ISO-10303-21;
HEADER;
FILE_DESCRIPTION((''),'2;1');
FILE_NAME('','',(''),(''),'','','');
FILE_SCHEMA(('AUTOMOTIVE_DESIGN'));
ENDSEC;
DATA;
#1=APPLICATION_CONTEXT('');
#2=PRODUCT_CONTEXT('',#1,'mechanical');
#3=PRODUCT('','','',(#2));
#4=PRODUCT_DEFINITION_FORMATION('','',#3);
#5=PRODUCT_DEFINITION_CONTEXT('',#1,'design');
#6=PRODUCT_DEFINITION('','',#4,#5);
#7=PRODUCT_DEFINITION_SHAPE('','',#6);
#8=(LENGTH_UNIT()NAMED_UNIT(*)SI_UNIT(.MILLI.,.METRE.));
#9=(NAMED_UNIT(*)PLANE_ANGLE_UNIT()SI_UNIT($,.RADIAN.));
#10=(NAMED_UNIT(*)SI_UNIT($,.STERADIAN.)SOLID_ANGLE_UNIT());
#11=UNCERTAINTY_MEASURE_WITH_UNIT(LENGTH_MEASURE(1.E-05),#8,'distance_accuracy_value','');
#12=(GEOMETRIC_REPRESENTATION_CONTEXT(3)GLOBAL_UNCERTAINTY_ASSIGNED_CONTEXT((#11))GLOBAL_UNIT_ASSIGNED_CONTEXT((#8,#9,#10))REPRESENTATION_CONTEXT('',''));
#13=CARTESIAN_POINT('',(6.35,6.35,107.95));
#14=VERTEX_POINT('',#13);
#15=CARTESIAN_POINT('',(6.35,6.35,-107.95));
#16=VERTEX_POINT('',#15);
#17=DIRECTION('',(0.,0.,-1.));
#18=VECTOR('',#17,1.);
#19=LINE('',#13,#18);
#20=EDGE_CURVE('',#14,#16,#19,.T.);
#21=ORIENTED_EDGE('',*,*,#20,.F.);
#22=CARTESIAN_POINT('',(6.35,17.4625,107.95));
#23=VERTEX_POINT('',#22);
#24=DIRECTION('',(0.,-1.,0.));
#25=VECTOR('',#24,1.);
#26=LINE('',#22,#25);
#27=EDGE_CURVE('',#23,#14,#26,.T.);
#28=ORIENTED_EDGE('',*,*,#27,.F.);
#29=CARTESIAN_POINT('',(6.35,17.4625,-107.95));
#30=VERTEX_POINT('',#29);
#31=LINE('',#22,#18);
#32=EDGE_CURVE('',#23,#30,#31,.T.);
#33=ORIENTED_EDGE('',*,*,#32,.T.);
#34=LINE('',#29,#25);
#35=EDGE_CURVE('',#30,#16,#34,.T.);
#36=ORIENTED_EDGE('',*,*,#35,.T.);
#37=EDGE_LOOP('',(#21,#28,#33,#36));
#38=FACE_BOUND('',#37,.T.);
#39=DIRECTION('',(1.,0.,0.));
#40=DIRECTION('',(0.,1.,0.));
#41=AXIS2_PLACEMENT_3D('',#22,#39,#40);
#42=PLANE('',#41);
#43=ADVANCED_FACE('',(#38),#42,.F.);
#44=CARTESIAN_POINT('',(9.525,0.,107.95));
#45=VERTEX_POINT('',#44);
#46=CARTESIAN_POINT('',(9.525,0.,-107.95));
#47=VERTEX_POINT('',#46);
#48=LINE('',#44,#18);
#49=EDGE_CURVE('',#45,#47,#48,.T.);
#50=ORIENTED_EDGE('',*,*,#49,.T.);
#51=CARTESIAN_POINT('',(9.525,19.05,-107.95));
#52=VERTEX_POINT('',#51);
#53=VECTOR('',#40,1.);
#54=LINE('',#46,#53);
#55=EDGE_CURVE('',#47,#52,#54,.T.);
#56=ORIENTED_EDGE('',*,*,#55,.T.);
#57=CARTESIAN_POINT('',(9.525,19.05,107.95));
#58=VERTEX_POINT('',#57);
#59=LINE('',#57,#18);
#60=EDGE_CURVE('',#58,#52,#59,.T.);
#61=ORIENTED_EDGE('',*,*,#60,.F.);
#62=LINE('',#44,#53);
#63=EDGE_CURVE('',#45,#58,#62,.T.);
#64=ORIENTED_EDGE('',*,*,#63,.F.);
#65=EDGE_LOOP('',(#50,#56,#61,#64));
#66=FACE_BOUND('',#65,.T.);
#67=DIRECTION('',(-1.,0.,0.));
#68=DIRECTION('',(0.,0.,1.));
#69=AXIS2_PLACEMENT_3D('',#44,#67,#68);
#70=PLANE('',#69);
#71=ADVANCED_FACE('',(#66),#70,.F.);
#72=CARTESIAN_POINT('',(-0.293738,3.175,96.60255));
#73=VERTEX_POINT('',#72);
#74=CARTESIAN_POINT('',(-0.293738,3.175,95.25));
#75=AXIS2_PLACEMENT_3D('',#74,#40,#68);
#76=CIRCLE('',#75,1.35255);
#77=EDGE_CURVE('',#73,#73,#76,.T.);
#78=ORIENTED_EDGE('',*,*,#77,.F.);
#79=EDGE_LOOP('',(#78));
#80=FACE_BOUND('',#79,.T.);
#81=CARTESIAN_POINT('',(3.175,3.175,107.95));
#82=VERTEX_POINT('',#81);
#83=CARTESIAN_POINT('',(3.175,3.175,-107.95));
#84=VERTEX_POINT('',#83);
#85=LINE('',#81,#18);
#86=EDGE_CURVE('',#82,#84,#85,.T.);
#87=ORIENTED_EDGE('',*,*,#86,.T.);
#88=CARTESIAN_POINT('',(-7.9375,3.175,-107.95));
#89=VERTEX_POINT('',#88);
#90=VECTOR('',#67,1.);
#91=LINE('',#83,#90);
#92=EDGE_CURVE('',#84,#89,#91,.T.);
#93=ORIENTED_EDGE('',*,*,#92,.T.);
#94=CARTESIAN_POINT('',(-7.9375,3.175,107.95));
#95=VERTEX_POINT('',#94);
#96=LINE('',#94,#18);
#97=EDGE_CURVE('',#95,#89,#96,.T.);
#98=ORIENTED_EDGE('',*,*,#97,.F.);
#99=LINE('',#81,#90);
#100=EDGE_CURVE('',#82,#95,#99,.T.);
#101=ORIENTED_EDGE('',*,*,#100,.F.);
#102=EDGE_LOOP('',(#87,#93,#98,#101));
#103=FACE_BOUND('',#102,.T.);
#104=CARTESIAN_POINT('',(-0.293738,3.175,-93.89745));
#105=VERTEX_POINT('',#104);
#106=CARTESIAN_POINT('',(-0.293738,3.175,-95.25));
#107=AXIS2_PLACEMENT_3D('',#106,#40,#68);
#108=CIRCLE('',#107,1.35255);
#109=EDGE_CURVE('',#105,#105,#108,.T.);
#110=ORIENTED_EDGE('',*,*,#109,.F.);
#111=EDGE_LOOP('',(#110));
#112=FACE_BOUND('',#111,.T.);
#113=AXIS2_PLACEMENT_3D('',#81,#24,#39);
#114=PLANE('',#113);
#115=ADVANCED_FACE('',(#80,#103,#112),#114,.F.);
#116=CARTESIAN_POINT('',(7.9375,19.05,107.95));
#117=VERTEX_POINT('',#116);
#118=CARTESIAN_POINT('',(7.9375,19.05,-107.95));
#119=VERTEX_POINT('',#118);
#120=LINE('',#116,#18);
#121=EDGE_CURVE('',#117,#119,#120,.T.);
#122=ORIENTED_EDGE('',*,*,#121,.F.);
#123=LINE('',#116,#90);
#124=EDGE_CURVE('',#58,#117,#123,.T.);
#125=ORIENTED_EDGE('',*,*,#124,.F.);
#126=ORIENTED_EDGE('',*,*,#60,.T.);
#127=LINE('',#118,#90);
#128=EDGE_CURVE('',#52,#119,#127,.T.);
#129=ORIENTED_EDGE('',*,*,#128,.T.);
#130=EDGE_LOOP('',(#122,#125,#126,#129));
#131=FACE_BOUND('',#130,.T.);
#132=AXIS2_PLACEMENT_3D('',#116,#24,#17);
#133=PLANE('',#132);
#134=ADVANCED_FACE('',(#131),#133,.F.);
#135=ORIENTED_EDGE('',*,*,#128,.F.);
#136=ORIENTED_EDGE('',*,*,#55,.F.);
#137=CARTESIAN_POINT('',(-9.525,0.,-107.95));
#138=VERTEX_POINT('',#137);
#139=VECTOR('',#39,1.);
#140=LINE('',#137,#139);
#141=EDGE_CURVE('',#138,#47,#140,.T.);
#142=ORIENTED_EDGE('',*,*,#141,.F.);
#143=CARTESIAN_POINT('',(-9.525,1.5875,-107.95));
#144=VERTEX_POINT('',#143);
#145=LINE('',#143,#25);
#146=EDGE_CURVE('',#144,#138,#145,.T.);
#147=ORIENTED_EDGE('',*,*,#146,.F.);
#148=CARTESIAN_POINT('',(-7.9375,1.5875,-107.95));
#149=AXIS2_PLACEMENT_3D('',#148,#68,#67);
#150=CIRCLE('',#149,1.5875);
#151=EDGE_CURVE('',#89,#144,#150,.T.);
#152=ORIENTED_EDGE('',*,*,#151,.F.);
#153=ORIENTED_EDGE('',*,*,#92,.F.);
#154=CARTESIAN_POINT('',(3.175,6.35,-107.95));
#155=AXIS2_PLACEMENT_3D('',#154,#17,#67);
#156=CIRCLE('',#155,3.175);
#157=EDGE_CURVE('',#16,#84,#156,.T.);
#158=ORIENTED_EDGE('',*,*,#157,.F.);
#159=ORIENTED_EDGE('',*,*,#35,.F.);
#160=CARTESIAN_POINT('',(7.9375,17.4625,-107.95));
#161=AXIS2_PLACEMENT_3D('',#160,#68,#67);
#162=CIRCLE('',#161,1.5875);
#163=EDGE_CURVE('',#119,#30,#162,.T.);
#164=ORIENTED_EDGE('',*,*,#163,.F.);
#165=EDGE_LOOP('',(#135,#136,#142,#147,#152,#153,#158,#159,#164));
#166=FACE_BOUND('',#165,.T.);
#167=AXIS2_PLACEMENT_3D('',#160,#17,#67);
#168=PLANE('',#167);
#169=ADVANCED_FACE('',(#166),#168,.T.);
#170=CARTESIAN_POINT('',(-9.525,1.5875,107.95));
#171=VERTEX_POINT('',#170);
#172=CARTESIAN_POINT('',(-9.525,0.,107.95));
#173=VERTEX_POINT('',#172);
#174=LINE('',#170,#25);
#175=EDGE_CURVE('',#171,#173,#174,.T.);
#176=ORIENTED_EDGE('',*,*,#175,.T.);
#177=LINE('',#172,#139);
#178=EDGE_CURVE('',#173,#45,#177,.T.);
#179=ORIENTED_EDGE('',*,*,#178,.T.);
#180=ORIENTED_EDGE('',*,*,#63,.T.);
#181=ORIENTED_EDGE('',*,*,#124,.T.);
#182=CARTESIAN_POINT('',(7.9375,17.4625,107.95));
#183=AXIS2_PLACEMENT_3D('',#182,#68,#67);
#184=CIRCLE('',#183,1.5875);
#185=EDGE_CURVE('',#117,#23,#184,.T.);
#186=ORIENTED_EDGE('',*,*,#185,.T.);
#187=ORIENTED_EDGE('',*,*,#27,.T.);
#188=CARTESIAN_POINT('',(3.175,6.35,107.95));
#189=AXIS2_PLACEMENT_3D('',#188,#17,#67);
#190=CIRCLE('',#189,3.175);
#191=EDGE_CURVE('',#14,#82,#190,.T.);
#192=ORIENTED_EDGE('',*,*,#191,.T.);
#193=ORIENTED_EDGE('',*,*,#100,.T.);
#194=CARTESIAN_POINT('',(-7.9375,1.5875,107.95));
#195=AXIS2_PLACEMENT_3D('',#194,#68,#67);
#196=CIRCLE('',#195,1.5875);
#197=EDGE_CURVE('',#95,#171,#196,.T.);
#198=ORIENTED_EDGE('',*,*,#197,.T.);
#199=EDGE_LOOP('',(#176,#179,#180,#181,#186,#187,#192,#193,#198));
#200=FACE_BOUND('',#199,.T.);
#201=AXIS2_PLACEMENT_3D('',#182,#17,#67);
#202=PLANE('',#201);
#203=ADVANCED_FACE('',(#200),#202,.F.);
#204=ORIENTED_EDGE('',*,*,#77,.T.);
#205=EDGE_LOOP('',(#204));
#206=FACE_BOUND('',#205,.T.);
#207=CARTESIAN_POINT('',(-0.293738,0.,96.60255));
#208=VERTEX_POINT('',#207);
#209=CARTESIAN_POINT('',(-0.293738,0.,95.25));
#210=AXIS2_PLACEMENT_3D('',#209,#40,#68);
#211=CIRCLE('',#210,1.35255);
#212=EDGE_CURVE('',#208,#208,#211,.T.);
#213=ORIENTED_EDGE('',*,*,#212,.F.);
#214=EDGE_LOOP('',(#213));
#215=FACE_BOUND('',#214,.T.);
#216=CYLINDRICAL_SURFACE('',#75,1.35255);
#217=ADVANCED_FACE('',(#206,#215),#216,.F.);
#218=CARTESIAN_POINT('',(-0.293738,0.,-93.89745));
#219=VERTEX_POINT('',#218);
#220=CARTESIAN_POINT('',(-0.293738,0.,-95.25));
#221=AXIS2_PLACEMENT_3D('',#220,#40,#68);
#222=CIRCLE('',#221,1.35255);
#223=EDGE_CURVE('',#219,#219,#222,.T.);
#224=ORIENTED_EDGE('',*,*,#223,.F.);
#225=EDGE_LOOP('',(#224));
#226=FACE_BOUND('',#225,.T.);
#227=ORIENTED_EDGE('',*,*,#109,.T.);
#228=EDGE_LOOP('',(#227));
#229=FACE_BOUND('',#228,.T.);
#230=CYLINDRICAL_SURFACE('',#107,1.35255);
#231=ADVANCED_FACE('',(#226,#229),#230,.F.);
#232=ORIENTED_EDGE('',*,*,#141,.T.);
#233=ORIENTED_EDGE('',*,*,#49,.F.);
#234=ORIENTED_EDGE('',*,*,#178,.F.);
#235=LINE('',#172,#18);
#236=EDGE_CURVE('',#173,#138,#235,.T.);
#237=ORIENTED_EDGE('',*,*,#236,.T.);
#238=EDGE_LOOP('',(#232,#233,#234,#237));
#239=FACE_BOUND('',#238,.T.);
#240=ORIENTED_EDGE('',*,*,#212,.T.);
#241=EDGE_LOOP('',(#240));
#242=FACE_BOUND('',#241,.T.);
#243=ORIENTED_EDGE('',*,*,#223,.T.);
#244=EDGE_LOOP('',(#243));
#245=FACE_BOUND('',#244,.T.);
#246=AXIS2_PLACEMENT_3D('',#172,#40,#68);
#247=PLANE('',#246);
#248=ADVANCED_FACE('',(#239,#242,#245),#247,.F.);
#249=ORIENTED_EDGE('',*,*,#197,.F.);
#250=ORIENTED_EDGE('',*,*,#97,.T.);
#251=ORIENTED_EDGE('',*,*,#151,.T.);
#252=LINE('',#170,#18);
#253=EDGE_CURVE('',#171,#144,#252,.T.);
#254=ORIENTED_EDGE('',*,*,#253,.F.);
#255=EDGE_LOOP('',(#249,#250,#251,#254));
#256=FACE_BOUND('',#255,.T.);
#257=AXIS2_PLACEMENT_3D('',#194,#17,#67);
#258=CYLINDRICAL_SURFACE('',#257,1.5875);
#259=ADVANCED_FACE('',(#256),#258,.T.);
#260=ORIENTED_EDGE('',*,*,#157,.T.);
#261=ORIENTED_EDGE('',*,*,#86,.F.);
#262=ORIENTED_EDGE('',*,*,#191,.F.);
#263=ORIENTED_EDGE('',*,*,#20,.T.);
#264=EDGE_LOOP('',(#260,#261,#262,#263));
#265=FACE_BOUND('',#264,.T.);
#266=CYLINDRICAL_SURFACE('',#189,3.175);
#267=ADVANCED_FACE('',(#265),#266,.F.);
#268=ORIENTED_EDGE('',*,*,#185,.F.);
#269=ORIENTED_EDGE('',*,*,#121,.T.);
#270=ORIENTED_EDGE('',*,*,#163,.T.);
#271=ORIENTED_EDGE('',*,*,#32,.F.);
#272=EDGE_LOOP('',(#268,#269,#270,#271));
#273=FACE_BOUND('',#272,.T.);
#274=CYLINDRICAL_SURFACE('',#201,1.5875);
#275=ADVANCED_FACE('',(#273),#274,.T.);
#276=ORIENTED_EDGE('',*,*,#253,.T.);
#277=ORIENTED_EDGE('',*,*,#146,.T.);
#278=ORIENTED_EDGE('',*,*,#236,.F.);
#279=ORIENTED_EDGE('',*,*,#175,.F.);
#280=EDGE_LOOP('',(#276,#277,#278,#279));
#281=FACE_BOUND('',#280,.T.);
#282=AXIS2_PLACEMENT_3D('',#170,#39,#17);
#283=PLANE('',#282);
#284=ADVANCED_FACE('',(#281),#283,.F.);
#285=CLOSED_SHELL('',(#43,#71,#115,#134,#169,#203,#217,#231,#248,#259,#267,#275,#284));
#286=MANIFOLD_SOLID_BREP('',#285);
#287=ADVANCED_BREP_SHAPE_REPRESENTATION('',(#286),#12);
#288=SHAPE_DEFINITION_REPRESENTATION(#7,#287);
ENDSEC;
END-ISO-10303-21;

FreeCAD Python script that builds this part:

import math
import FreeCAD as App
import Part
import Sketcher

V = App.Vector
Q = App.Units.Quantity

doc = App.newDocument("Part")
body = doc.addObject("PartDesign::Body", "Body")

sketch1 = body.newObject("Sketcher::SketchObject", "Sketch")
sketch1.AttachmentSupport = (doc.getObject("XY_Plane"), [""])
sketch1.MapMode = "FlatFace"
sketch1.addGeometry(Part.LineSegment(V(-9.5, 0, 0), V(9.5, 0, 0)), False)
sketch1.addGeometry(Part.LineSegment(V(9.5, 0, 0), V(9.5, 19.1, 0)), False)
sketch1.addGeometry(Part.LineSegment(V(9.5, 19.1, 0), V(7.9, 19.1, 0)), False)
sketch1.addGeometry(Part.ArcOfCircle(Part.Circle(V(7.9, 17.5, 0), V(0, 0, 1), 1.6), math.radians(90), math.radians(180)), False)
sketch1.addGeometry(Part.LineSegment(V(6.3, 17.5, 0), V(6.3, 6.3, 0)), False)
sketch1.addGeometry(Part.ArcOfCircle(Part.Circle(V(3.2, 6.4, 0), V(0, 0, 1), 3.2), math.radians(-90), math.radians(0)), False)
sketch1.addGeometry(Part.LineSegment(V(3.2, 3.2, 0), V(-7.9, 3.2, 0)), False)
sketch1.addGeometry(Part.ArcOfCircle(Part.Circle(V(-7.9, 1.6, 0), V(0, 0, 1), 1.6), math.radians(90), math.radians(180)), False)
sketch1.addGeometry(Part.LineSegment(V(-9.5, 1.6, 0), V(-9.5, 0, 0)), False)
sketch1.addConstraint(Sketcher.Constraint("Coincident", 0, 2, 1, 1))
sketch1.addConstraint(Sketcher.Constraint("Coincident", 1, 2, 2, 1))
sketch1.addConstraint(Sketcher.Constraint("Tangent", 2, 2, 3, 1))
sketch1.addConstraint(Sketcher.Constraint("Tangent", 3, 2, 4, 1))
sketch1.addConstraint(Sketcher.Constraint("Tangent", 4, 2, 5, 2))
sketch1.addConstraint(Sketcher.Constraint("Tangent", 5, 1, 6, 1))
sketch1.addConstraint(Sketcher.Constraint("Tangent", 6, 2, 7, 1))
sketch1.addConstraint(Sketcher.Constraint("Tangent", 7, 2, 8, 1))
sketch1.addConstraint(Sketcher.Constraint("Coincident", 8, 2, 0, 1))
sketch1.addConstraint(Sketcher.Constraint("Horizontal", 0))
sketch1.addConstraint(Sketcher.Constraint("Vertical", 1))
sketch1.addConstraint(Sketcher.Constraint("Horizontal", 2))
sketch1.addConstraint(Sketcher.Constraint("Vertical", 4))
sketch1.addConstraint(Sketcher.Constraint("Horizontal", 6))
sketch1.addConstraint(Sketcher.Constraint("Vertical", 8))
sketch1.addConstraint(Sketcher.Constraint("Equal", 3, 7))
sketch1.addConstraint(Sketcher.Constraint("Symmetric", 0, 2, 8, 2, -1, 1))
sketch1.addConstraint(Sketcher.Constraint("Equal", 0, 1))
sketch1.addConstraint(Sketcher.Constraint("Equal", 6, 4))
sketch1.addConstraint(Sketcher.Constraint("Radius", 3, Q("0.0625 in")))
sketch1.addConstraint(Sketcher.Constraint("Radius", 5, Q("0.125 in")))
sketch1.addConstraint(Sketcher.Constraint("DistanceX", 0, 1, 0, 2, Q("0.75 in")))
sketch1.addConstraint(Sketcher.Constraint("DistanceY", 5, 3, 1, 2, Q("0.5 in")))
pad1 = body.newObject("PartDesign::Pad", "Pad")
pad1.Profile = sketch1
pad1.Length = Q("8.5 in")
pad1.Midplane = True

sketch2 = body.newObject("Sketcher::SketchObject", "Sketch001")
sketch2.AttachmentSupport = (doc.getObject("XZ_Plane"), [""])
sketch2.MapMode = "FlatFace"
sketch2.AttachmentOffset = App.Placement(V(0, 0, -0.125 * 25.4), App.Rotation())
sketch2.addGeometry(Part.Circle(V(-0.3, 95.2, 0), V(0, 0, 1), 1.4), False)
sketch2.addGeometry(Part.Circle(V(-0.3, -95.2, 0), V(0, 0, 1), 1.4), False)
sketch2.addConstraint(Sketcher.Constraint("Equal", 0, 1))
sketch2.addConstraint(Sketcher.Constraint("Symmetric", 0, 3, 1, 3, -1))
sketch2.addConstraint(Sketcher.Constraint("Diameter", 0, Q("0.1065 in")))
sketch2.addConstraint(Sketcher.Constraint("DistanceY", 1, 3, 0, 3, Q("7.5 in")))
sketch2.addConstraint(Sketcher.Constraint("DistanceX", 0, 3, -1, 1, 0.293738))
doc.recompute()
hole = body.newObject("PartDesign::Hole", "Hole")
hole.Profile = sketch2
hole.ThreadType = "None"
hole.Diameter = Q("0.1065 in")
hole.DepthType = "ThroughAll"
hole.Reversed = True

doc.recompute()
